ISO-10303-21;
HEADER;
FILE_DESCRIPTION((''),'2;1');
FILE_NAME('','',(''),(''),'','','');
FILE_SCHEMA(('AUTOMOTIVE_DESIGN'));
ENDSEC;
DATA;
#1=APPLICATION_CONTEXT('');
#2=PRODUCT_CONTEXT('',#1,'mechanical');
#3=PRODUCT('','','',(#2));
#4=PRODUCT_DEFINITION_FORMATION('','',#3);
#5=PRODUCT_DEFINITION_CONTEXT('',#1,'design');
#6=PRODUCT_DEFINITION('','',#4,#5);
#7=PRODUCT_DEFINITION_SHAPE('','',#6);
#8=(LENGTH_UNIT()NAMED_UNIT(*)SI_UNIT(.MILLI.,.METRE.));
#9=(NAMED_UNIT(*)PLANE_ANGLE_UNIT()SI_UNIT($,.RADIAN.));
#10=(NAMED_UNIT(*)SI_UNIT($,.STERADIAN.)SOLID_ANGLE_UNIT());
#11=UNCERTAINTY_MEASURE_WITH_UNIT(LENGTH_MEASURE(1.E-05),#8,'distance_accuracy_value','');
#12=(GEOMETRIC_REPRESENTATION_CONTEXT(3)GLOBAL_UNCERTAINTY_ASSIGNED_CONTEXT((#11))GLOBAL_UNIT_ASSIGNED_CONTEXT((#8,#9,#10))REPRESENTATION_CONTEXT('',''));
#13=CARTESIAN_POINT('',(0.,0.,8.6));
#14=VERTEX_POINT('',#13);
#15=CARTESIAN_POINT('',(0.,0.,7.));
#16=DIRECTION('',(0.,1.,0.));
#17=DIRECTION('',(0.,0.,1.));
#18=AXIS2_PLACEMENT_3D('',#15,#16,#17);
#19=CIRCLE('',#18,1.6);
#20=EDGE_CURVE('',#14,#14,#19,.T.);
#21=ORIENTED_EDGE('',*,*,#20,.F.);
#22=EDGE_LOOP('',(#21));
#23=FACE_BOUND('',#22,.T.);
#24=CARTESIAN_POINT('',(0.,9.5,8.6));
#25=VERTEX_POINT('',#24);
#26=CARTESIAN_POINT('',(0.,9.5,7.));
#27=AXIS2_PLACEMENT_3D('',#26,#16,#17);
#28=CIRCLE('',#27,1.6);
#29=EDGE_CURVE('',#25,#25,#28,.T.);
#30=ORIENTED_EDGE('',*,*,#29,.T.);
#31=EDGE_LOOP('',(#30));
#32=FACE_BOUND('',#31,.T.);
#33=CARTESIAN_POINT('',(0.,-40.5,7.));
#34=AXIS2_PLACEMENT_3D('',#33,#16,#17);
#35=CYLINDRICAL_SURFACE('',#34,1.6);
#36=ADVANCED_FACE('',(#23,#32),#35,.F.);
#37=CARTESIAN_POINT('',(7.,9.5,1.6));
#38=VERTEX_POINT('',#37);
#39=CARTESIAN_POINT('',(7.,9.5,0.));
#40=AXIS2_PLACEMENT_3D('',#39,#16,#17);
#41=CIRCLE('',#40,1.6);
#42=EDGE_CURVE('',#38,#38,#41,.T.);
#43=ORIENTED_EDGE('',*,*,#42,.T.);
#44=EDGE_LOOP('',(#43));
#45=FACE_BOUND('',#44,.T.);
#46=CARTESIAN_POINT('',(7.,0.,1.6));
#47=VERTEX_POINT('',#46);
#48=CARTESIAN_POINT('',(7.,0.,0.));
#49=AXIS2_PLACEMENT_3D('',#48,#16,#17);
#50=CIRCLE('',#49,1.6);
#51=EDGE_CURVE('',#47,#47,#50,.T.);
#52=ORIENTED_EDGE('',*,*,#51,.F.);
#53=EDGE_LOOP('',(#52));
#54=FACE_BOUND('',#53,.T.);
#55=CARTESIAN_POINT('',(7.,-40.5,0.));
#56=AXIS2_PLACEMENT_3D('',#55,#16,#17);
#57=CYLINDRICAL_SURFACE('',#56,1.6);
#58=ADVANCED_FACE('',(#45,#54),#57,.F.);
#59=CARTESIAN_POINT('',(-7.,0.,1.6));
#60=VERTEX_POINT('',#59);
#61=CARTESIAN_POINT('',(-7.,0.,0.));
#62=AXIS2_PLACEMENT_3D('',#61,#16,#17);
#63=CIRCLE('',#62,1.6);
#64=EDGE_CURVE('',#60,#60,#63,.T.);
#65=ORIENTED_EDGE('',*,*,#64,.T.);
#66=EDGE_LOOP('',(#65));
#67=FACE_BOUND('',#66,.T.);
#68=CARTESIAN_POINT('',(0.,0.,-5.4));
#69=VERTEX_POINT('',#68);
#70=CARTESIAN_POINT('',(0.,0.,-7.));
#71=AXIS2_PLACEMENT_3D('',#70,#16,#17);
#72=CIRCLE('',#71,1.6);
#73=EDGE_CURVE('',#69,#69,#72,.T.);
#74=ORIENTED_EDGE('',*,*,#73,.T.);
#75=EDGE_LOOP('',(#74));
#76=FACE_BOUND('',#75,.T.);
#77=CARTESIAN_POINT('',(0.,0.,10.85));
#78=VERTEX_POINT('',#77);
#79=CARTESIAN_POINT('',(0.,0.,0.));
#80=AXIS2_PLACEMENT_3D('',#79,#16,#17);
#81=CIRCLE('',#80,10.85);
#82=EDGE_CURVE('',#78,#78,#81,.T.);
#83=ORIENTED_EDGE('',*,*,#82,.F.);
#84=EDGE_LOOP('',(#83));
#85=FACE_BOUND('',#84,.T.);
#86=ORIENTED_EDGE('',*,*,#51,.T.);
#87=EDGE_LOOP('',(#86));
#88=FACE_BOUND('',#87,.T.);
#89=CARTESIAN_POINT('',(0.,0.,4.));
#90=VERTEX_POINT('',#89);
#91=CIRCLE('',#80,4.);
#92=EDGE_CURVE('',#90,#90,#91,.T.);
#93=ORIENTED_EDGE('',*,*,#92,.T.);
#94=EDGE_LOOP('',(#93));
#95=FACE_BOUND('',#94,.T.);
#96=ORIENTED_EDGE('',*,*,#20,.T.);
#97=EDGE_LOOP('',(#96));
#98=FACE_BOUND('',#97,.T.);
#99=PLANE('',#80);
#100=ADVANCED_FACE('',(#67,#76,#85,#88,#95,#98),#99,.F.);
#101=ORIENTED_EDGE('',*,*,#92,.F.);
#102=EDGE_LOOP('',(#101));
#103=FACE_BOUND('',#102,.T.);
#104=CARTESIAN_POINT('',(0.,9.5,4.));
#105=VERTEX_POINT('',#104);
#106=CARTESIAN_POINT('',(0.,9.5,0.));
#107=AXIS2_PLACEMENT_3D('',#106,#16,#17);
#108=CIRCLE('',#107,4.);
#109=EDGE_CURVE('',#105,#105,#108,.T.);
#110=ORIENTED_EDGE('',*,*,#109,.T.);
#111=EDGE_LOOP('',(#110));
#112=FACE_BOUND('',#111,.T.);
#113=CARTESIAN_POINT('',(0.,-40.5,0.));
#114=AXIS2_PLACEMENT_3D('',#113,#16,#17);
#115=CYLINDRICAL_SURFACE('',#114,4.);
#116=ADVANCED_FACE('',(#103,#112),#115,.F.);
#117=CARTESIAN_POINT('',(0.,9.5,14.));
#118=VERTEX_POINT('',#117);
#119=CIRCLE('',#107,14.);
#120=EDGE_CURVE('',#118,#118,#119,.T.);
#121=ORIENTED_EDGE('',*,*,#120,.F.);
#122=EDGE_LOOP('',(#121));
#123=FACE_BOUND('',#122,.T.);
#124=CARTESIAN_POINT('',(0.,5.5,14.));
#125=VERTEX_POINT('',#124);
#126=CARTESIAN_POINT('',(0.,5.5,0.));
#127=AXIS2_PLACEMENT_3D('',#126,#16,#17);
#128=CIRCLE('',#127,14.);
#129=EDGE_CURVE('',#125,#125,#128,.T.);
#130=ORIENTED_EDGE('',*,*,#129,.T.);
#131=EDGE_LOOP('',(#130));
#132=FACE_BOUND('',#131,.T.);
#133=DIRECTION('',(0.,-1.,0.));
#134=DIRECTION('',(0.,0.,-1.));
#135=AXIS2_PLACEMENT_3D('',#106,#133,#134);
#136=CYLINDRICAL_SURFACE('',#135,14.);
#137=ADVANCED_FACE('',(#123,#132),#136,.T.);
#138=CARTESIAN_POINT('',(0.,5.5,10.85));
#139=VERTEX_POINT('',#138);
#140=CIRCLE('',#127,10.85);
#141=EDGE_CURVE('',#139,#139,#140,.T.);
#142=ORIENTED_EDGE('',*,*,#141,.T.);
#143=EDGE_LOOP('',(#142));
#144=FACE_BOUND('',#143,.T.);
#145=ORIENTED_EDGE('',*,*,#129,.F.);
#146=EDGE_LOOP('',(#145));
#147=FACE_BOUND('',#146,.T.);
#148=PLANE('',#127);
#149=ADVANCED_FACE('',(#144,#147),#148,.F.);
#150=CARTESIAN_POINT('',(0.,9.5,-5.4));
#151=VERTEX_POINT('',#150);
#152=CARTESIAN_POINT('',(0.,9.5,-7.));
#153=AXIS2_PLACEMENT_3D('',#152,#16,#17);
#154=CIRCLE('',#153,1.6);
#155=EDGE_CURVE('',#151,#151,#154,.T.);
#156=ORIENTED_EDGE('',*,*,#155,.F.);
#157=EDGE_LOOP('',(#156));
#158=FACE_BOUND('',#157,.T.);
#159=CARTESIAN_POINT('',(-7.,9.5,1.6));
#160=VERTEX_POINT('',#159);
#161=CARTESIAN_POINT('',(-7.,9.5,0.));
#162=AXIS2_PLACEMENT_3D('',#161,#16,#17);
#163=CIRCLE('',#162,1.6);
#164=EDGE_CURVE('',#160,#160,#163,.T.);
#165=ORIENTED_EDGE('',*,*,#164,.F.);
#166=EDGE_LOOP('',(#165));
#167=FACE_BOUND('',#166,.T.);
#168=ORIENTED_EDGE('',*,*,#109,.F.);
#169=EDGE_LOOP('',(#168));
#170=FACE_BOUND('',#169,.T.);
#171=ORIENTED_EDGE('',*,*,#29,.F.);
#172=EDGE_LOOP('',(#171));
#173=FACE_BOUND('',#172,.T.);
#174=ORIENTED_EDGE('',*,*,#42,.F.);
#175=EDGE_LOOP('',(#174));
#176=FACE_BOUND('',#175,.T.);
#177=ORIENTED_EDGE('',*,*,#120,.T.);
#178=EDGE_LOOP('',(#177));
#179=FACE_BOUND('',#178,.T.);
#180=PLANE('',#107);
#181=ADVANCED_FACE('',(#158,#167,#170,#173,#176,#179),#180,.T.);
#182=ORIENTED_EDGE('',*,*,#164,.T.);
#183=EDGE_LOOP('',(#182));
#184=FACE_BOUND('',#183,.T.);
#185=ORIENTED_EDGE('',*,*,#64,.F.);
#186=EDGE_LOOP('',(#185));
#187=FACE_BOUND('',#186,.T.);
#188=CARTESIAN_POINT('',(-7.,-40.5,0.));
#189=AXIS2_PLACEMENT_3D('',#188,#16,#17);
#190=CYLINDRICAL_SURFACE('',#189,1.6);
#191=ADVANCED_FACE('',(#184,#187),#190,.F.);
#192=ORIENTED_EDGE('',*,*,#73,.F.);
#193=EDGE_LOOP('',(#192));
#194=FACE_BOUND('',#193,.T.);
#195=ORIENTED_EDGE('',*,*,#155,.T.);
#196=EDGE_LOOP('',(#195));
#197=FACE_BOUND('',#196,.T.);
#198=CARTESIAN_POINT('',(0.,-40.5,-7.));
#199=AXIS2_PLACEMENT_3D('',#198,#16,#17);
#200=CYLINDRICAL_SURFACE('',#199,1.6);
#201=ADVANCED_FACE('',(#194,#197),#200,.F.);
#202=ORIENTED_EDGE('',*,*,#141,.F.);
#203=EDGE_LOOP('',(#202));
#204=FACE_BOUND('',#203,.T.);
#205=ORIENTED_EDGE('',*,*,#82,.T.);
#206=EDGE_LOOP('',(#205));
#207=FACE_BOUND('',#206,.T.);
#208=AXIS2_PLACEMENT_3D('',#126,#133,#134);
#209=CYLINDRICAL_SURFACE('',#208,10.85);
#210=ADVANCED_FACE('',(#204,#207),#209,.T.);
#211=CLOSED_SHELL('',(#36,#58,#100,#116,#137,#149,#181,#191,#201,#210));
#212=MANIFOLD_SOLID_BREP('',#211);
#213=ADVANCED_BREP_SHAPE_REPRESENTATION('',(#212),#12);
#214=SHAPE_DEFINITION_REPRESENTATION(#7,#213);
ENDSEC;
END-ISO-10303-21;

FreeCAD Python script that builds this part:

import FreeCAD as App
import Part
import Sketcher

doc = App.newDocument("Part")
body = doc.addObject("PartDesign::Body", "Body")

# Sketch on XZ plane
sketch1 = body.newObject("Sketcher::SketchObject", "Sketch")
sketch1.AttachmentSupport = (doc.getObject("XZ_Plane"), [""])
sketch1.MapMode = "FlatFace"
sketch1.addGeometry(Part.Circle(App.Vector(0, 0, 0), App.Vector(0, 0, 1), 10.85), False)
sketch1.addConstraint([
    Sketcher.Constraint("Coincident", 0, 3, -1, 1),
    Sketcher.Constraint("Diameter", 0, 21.7),
])
pad1 = body.newObject("PartDesign::Pad", "Pad")
pad1.Profile = sketch1
pad1.Length = 5.5
pad1.Reversed = True

# Sketch on XZ plane
sketch2 = body.newObject("Sketcher::SketchObject", "Sketch001")
sketch2.AttachmentSupport = (doc.getObject("XZ_Plane"), [""])
sketch2.MapMode = "FlatFace"
sketch2.AttachmentOffset = App.Placement(App.Vector(0, 0, -5.5), App.Rotation())
sketch2.addGeometry(Part.Circle(App.Vector(0, 0, 0), App.Vector(0, 0, 1), 14), False)
sketch2.addConstraint([
    Sketcher.Constraint("Coincident", 0, 3, -1, 1),
    Sketcher.Constraint("Diameter", 0, 28.0),
])
pad2 = body.newObject("PartDesign::Pad", "Pad001")
pad2.Profile = sketch2
pad2.Length = 4
pad2.Reversed = True

# Sketch on XZ plane
sketch3 = body.newObject("Sketcher::SketchObject", "Sketch002")
sketch3.AttachmentSupport = (doc.getObject("XZ_Plane"), [""])
sketch3.MapMode = "FlatFace"
sketch3.AttachmentOffset = App.Placement(App.Vector(0, 0, -9.5), App.Rotation())
sketch3.addGeometry([
    Part.Circle(App.Vector(0, 0, 0), App.Vector(0, 0, 1), 4),  # 0
    Part.Circle(App.Vector(0, -7, 0), App.Vector(0, 0, 1), 1.6),  # 1
    Part.Circle(App.Vector(7, 0, 0), App.Vector(0, 0, 1), 1.6),  # 2
    Part.Circle(App.Vector(0, 7, 0), App.Vector(0, 0, 1), 1.6),  # 3
    Part.Circle(App.Vector(-7, 0, 0), App.Vector(0, 0, 1), 1.6),  # 4
], False)
sketch3.addConstraint([
    Sketcher.Constraint("Coincident", 0, 3, -1, 1),
    Sketcher.Constraint("Equal", 1, 2),
    Sketcher.Constraint("Equal", 2, 3),
    Sketcher.Constraint("Equal", 3, 4),
    Sketcher.Constraint("Symmetric", 1, 3, 3, 3, -1, 1),
    Sketcher.Constraint("Symmetric", 2, 3, 4, 3, -1, 1),
    Sketcher.Constraint("PointOnObject", 1, 3, -2),
    Sketcher.Constraint("PointOnObject", 2, 3, -1),
    Sketcher.Constraint("Diameter", 0, 8.0),
    Sketcher.Constraint("Diameter", 1, 3.2),
    Sketcher.Constraint("DistanceY", 1, 3, -1, 1, 7.0),
    Sketcher.Constraint("DistanceX", -1, 1, 2, 3, 7.0),
])
pocket1 = body.newObject("PartDesign::Pocket", "Pocket")
pocket1.Profile = sketch3
pocket1.Length = 50
pocket1.Reversed = True

doc.recompute()
